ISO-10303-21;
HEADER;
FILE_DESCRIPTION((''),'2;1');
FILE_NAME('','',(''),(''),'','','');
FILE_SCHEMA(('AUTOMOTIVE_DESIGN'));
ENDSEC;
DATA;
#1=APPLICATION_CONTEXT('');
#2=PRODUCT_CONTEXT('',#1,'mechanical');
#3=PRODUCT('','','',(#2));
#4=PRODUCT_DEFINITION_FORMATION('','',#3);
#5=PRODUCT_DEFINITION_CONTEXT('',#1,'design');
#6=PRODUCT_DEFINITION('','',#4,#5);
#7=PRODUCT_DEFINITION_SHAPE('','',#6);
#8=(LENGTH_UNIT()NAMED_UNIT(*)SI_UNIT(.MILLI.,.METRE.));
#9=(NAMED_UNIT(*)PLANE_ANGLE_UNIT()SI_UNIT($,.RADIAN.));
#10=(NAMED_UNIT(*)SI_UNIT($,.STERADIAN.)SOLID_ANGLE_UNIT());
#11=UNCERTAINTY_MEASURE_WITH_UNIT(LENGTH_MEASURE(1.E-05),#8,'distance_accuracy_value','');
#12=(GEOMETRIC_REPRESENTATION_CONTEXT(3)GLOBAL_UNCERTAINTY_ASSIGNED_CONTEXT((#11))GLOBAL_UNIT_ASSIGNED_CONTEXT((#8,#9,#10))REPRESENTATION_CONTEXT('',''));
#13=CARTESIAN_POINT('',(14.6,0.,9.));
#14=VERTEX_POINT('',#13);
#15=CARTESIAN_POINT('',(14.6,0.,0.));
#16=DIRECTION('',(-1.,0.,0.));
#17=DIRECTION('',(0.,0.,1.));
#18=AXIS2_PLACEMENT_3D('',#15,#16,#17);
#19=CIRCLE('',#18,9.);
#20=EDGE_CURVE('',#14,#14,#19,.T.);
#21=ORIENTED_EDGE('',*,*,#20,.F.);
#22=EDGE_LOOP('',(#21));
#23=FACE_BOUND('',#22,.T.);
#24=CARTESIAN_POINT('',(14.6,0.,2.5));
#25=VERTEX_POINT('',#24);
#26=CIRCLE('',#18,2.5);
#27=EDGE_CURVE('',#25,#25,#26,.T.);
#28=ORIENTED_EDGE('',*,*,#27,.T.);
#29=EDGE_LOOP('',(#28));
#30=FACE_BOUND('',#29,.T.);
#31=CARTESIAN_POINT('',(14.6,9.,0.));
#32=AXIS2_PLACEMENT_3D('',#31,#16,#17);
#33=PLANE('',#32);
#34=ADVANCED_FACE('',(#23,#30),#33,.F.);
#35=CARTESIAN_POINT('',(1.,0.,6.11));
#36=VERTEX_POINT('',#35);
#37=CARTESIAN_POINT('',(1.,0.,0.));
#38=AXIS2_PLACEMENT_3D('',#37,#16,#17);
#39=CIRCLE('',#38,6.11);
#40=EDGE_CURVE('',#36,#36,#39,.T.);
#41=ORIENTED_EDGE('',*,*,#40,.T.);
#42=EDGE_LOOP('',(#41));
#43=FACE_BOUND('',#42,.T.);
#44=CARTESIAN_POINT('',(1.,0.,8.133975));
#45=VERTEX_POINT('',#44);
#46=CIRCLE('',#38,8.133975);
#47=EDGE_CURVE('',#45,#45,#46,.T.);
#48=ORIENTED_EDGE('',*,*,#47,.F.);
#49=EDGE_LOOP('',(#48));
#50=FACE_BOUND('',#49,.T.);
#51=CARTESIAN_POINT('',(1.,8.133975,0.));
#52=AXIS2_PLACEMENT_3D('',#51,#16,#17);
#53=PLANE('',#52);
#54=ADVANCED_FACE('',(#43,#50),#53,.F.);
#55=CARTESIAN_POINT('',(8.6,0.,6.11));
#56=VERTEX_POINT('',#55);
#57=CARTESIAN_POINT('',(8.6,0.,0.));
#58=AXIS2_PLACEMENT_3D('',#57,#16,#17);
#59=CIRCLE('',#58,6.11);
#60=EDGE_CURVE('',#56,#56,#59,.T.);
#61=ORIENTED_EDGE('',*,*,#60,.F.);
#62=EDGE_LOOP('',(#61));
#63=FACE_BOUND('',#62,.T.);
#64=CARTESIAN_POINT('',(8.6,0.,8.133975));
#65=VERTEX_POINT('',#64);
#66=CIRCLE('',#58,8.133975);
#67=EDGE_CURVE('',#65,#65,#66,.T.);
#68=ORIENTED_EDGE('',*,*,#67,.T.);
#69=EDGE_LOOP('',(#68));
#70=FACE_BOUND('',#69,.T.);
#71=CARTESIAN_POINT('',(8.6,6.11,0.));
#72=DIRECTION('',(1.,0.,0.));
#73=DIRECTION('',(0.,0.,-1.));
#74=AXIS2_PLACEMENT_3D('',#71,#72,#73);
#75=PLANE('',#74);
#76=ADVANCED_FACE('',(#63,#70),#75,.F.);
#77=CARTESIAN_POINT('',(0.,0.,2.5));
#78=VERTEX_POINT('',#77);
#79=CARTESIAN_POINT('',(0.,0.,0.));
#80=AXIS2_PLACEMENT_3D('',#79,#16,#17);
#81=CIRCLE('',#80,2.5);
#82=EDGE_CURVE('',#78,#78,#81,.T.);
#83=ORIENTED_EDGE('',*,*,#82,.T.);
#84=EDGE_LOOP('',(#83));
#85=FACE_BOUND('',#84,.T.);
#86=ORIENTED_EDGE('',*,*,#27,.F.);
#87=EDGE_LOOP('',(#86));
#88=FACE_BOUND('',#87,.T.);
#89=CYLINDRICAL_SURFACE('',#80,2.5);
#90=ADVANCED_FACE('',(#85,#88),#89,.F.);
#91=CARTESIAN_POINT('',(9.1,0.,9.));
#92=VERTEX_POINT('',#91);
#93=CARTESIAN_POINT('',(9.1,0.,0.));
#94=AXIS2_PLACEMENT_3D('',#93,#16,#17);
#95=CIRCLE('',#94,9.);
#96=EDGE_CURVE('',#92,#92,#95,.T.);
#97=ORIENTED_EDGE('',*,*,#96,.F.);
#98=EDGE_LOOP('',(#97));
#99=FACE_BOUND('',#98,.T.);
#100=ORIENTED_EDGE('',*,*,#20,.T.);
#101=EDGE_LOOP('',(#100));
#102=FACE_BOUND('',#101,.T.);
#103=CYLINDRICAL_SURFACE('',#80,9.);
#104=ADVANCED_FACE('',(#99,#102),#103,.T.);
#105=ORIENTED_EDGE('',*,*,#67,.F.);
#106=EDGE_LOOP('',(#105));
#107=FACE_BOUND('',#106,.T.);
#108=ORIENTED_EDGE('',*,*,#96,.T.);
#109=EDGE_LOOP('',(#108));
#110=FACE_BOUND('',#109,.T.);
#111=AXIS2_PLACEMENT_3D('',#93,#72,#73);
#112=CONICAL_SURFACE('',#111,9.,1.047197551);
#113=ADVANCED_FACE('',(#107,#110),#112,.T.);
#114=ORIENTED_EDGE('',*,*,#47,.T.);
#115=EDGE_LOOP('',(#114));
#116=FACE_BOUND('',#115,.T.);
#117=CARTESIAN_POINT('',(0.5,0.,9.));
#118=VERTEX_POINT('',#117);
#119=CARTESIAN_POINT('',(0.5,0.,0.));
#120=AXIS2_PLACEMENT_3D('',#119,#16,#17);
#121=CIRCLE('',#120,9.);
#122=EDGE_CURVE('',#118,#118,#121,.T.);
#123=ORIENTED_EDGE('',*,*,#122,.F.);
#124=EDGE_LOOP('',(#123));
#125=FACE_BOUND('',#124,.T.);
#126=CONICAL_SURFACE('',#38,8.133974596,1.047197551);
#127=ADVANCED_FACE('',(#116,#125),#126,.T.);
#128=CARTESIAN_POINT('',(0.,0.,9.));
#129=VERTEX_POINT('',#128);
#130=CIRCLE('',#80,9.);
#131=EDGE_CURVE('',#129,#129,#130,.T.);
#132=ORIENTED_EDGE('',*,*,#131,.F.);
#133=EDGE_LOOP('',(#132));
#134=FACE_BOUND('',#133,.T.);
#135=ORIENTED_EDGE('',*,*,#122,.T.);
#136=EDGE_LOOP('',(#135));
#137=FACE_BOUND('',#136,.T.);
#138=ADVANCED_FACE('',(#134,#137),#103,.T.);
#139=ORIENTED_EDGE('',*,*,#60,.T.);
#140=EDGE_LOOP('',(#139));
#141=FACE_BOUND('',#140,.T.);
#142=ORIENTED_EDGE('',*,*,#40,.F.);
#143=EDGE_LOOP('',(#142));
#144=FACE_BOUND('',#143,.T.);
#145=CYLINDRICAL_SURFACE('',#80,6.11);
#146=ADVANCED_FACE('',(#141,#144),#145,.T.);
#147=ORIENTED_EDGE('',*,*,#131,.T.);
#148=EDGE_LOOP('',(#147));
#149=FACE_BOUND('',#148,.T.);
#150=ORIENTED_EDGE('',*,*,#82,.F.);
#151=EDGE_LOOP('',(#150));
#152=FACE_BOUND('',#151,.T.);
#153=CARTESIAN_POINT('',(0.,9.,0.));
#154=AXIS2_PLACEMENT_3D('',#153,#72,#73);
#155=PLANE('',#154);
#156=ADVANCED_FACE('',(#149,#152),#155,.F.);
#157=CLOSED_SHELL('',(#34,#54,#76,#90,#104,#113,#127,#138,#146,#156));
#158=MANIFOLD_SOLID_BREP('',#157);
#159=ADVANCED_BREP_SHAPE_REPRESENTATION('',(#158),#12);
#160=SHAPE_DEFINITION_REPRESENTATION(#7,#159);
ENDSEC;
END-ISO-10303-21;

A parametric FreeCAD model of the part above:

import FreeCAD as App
import Part
import Sketcher
Q = App.Units.Quantity


def add_polygon(sketch, points):
    """Adds a closed chain of lines whose ends are joined by coincident constraints."""
    first, n = sketch.GeometryCount, len(points)
    for a, b in zip(points, points[1:] + points[:1]):
        sketch.addGeometry(Part.LineSegment(App.Vector(*a, 0), App.Vector(*b, 0)), False)
    for i in range(n):
        sketch.addConstraint(Sketcher.Constraint("Coincident", first + i, 2, first + (i + 1) % n, 1))

doc = App.newDocument("Part")
body = doc.addObject("PartDesign::Body", "Body")

# Sketch on XY plane
sketch1 = body.newObject("Sketcher::SketchObject", "Sketch")
sketch1.AttachmentSupport = (doc.getObject("XY_Plane"), [""])
sketch1.MapMode = "FlatFace"
add_polygon(sketch1, [(0.5, 9), (0, 9), (0, 2.5), (14.6, 2.5), (14.6, 9), (9.1, 9), (8.6, 8.1), (8.6, 6.1), (1, 6.1), (1, 8.1)])  # lines 0-9
sketch1.addConstraint(Sketcher.Constraint("Horizontal", 0))
sketch1.addConstraint(Sketcher.Constraint("Vertical", 1))
sketch1.addConstraint(Sketcher.Constraint("Horizontal", 2))
sketch1.addConstraint(Sketcher.Constraint("Vertical", 3))
sketch1.addConstraint(Sketcher.Constraint("Horizontal", 4))
sketch1.addConstraint(Sketcher.Constraint("Vertical", 6))
sketch1.addConstraint(Sketcher.Constraint("Horizontal", 7))
sketch1.addConstraint(Sketcher.Constraint("Vertical", 8))
sketch1.addConstraint(Sketcher.Constraint("PointOnObject", 0, 2, -2))
sketch1.addConstraint(Sketcher.Constraint("Horizontal", 0, 2, 3, 2))
sketch1.addConstraint(Sketcher.Constraint("Horizontal", 5, 2, 8, 2))
sketch1.addConstraint(Sketcher.Constraint("Equal", 5, 9))
sketch1.addConstraint(Sketcher.Constraint("Angle", 5, Q("-120 deg")))
sketch1.addConstraint(Sketcher.Constraint("Distance", 5, Q("1 mm")))
sketch1.addConstraint(Sketcher.Constraint("DistanceX", 0, 2, 0, 1, Q("0.5 mm")))
sketch1.addConstraint(Sketcher.Constraint("DistanceX", 2, 1, 2, 2, Q("14.6 mm")))
sketch1.addConstraint(Sketcher.Constraint("DistanceX", 4, 2, 4, 1, Q("5.5 mm")))
sketch1.addConstraint(Sketcher.Constraint("DistanceY", 1, 2, 1, 1, Q("6.5 mm")))
sketch1.addConstraint(Sketcher.Constraint("DistanceY", -1, 1, 0, 2, Q("9 mm")))
sketch1.addConstraint(Sketcher.Constraint("DistanceY", -1, 1, 6, 2, Q("6.11 mm")))
revolution = body.newObject("PartDesign::Revolution", "Revolution")
revolution.Profile = sketch1
revolution.ReferenceAxis = (sketch1, ["H_Axis"])
revolution.Angle = 360

doc.recompute()
